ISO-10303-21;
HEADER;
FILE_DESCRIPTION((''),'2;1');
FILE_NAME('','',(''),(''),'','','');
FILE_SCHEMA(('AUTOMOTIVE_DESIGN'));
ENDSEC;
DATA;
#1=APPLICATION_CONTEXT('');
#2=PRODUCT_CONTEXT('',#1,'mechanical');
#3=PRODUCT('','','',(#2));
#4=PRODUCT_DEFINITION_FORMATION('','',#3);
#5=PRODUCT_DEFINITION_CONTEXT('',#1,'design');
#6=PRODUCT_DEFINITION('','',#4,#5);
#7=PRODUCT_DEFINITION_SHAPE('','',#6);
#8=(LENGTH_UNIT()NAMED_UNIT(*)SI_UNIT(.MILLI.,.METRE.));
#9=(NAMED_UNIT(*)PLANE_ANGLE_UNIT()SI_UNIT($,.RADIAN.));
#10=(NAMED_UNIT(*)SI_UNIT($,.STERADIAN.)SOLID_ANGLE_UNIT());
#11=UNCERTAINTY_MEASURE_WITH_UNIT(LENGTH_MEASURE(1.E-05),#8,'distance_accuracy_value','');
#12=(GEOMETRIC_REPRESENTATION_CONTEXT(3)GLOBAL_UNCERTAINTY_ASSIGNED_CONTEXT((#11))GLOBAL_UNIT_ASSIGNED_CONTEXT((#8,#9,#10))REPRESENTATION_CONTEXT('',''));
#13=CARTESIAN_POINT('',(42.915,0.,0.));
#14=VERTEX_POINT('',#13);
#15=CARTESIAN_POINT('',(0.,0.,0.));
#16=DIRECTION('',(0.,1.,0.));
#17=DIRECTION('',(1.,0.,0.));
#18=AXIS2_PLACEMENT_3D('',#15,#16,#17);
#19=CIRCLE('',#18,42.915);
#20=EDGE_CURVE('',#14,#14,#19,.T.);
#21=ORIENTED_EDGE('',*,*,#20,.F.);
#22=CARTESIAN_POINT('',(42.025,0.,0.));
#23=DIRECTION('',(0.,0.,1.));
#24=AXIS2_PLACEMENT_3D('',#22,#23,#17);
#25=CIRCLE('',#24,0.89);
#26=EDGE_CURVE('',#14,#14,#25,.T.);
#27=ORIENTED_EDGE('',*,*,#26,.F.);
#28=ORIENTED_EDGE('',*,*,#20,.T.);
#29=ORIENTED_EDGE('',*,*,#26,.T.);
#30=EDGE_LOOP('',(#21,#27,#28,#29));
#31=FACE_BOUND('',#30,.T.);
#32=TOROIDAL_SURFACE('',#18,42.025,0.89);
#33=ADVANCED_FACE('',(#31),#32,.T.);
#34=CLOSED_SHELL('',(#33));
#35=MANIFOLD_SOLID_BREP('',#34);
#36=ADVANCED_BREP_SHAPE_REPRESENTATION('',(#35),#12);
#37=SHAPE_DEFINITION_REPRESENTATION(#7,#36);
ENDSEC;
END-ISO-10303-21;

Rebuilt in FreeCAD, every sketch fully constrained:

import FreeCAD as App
import Part
import Sketcher
from FreeCAD import Vector
Q = App.Units.Quantity

doc = App.newDocument("Part")
body = doc.addObject("PartDesign::Body", "Body")

sketch1 = body.newObject("Sketcher::SketchObject", "Sketch")
sketch1.AttachmentSupport = (doc.getObject("XY_Plane"), [""])
sketch1.MapMode = "FlatFace"
sketch1.addGeometry(Part.Circle(Vector(42.025, 0, 0), Vector(0, 0, 1), 0.89), False)
sketch1.addConstraint(Sketcher.Constraint("PointOnObject", 0, 3, -1))
sketch1.addConstraint(Sketcher.Constraint("Diameter", 0, Q("1.78 mm")))
sketch1.addConstraint(Sketcher.Constraint("DistanceX", -1, 1, 0, 3, Q("42.025 mm")))
revolution = body.newObject("PartDesign::Revolution", "Revolution")
revolution.Profile = sketch1
revolution.ReferenceAxis = (sketch1, ["V_Axis"])
revolution.Angle = 360

doc.recompute()
